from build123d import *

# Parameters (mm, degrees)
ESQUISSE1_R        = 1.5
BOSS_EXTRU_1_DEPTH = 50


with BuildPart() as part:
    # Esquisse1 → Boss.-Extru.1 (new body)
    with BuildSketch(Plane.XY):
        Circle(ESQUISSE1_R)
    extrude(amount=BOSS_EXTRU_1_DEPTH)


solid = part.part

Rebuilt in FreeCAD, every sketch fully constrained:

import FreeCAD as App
import Part
import Sketcher

V = App.Vector

doc = App.newDocument("Part")
body = doc.addObject("PartDesign::Body", "Body")

sketch1 = body.newObject("Sketcher::SketchObject", "Sketch")
sketch1.AttachmentSupport = (doc.getObject("XY_Plane"), [""])
sketch1.MapMode = "FlatFace"
sketch1.addGeometry(Part.Circle(V(0, 0, 0), V(0, 0, 1), 1.5), False)
sketch1.addConstraint(Sketcher.Constraint("Coincident", 0, 3, -1, 1))
sketch1.addConstraint(Sketcher.Constraint("Diameter", 0, 3.0))
pad1 = body.newObject("PartDesign::Pad", "Pad")
pad1.Profile = sketch1
pad1.Length = 50

doc.recompute()
